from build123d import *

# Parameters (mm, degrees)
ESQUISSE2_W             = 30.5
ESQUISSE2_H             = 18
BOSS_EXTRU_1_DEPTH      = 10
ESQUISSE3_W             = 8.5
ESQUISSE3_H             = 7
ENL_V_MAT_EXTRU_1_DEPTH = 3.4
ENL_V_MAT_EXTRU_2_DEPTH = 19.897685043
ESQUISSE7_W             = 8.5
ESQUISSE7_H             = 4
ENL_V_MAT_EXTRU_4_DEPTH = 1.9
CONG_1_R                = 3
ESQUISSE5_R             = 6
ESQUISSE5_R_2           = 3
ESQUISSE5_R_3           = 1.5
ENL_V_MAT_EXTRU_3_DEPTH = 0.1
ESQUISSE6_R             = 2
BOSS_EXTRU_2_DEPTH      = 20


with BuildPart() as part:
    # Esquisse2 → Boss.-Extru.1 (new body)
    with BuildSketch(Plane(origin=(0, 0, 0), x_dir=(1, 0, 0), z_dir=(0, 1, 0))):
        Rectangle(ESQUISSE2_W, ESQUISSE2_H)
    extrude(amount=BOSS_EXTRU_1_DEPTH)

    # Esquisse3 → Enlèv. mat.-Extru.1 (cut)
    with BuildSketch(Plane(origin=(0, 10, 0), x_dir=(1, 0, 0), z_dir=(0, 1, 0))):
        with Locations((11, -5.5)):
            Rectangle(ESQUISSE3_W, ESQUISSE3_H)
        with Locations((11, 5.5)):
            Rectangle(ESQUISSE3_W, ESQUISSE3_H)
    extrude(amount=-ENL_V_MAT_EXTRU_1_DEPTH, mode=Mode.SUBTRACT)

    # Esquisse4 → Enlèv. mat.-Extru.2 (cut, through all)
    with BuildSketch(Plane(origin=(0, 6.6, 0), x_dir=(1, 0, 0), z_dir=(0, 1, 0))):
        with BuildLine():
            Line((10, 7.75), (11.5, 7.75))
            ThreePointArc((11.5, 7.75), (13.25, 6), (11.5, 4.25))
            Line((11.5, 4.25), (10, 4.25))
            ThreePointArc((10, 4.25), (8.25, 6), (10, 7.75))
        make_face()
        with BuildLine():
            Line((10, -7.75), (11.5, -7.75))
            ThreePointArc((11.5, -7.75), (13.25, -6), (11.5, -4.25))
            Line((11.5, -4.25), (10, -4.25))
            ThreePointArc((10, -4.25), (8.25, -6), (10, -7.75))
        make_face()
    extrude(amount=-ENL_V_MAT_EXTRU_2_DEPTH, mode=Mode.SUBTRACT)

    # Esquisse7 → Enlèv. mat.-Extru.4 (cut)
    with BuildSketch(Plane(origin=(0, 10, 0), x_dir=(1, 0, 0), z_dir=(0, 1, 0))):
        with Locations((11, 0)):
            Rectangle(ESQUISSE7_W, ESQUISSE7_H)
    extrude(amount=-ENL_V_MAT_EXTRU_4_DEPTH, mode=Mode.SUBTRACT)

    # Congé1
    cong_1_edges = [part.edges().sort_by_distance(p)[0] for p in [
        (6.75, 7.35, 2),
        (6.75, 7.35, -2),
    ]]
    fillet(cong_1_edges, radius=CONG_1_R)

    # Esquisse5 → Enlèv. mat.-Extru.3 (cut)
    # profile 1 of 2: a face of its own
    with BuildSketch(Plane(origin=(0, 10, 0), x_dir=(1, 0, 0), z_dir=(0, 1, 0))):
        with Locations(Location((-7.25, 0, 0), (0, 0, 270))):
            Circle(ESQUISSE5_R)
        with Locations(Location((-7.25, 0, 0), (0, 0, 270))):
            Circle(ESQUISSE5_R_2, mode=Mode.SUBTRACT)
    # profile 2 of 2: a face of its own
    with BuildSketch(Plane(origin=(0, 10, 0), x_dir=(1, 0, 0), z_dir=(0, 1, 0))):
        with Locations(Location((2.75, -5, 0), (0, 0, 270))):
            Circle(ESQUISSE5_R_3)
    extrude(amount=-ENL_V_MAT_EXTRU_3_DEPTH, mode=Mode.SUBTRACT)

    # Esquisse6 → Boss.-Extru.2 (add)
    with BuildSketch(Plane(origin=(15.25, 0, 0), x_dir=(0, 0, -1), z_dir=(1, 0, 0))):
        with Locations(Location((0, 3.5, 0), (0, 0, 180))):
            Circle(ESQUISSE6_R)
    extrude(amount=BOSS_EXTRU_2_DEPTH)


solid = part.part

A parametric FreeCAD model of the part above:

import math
import FreeCAD as App
import Part
import Sketcher
from FreeCAD import Vector
Q = App.Units.Quantity


def edges_at(feature, points):
    """Names of the edges that pass closest to the given points."""
    edges = feature.Shape.Edges
    near = lambda p: min(range(len(edges)), key=lambda i: edges[i].distToShape(Part.Vertex(*p))[0])
    return sorted({f"Edge{near(p) + 1}" for p in points})

doc = App.newDocument("Part")
body = doc.addObject("PartDesign::Body", "Body")

sketch1 = body.newObject("Sketcher::SketchObject", "Sketch")
sketch1.AttachmentSupport = (doc.getObject("XZ_Plane"), [""])
sketch1.MapMode = "FlatFace"
sketch1.addGeometry([
    Part.LineSegment(Vector(-15, -9, 0), Vector(-15, 9, 0)),
    Part.LineSegment(Vector(-15, 9, 0), Vector(15, 9, 0)),
    Part.LineSegment(Vector(15, 9, 0), Vector(15, -9, 0)),
    Part.LineSegment(Vector(15, -9, 0), Vector(-15, -9, 0)),
], False)
sketch1.addConstraint([
    Sketcher.Constraint("Coincident", 0, 2, 1, 1),
    Sketcher.Constraint("Coincident", 1, 2, 2, 1),
    Sketcher.Constraint("Coincident", 2, 2, 3, 1),
    Sketcher.Constraint("Coincident", 3, 2, 0, 1),
    Sketcher.Constraint("Vertical", 0),
    Sketcher.Constraint("Horizontal", 1),
    Sketcher.Constraint("Vertical", 2),
    Sketcher.Constraint("Horizontal", 3),
    Sketcher.Constraint("Symmetric", 0, 2, 2, 2, -1, 1),
    Sketcher.Constraint("DistanceY", 0, 1, 0, 2, Q("18 mm")),
    Sketcher.Constraint("DistanceX", 1, 1, 1, 2, Q("30.5 mm")),
])
pad1 = body.newObject("PartDesign::Pad", "Pad")
pad1.Profile = sketch1
pad1.Length = 10
pad1.Reversed = True

sketch2 = body.newObject("Sketcher::SketchObject", "Sketch001")
sketch2.AttachmentSupport = (doc.getObject("XZ_Plane"), [""])
sketch2.MapMode = "FlatFace"
sketch2.AttachmentOffset = App.Placement(Vector(0, 0, -10), App.Rotation())
sketch2.addGeometry([
    Part.LineSegment(Vector(7, 2, 0), Vector(7, 9, 0)),
    Part.LineSegment(Vector(7, 9, 0), Vector(15, 9, 0)),
    Part.LineSegment(Vector(15, 9, 0), Vector(15, 2, 0)),
    Part.LineSegment(Vector(15, 2, 0), Vector(7, 2, 0)),
    Part.LineSegment(Vector(7, -9, 0), Vector(7, -2, 0)),
    Part.LineSegment(Vector(7, -2, 0), Vector(15, -2, 0)),
    Part.LineSegment(Vector(15, -2, 0), Vector(15, -9, 0)),
    Part.LineSegment(Vector(15, -9, 0), Vector(7, -9, 0)),
], False)
sketch2.addConstraint([
    Sketcher.Constraint("Coincident", 0, 2, 1, 1),
    Sketcher.Constraint("Coincident", 1, 2, 2, 1),
    Sketcher.Constraint("Coincident", 2, 2, 3, 1),
    Sketcher.Constraint("Coincident", 3, 2, 0, 1),
    Sketcher.Constraint("Coincident", 4, 2, 5, 1),
    Sketcher.Constraint("Coincident", 5, 2, 6, 1),
    Sketcher.Constraint("Coincident", 6, 2, 7, 1),
    Sketcher.Constraint("Coincident", 7, 2, 4, 1),
    Sketcher.Constraint("Vertical", 0),
    Sketcher.Constraint("Horizontal", 1),
    Sketcher.Constraint("Vertical", 2),
    Sketcher.Constraint("Horizontal", 3),
    Sketcher.Constraint("Vertical", 4),
    Sketcher.Constraint("Horizontal", 5),
    Sketcher.Constraint("Vertical", 6),
    Sketcher.Constraint("Horizontal", 7),
    Sketcher.Constraint("Symmetric", 3, 2, 4, 2, -1),
    Sketcher.Constraint("Symmetric", 1, 2, 6, 2, -1),
    Sketcher.Constraint("DistanceY", 0, 1, 0, 2, Q("7 mm")),
    Sketcher.Constraint("DistanceX", 1, 1, 1, 2, Q("8.5 mm")),
    Sketcher.Constraint("DistanceY", -1, 1, 0, 2, Q("9 mm")),
    Sketcher.Constraint("DistanceX", -1, 1, 0, 2, Q("6.75 mm")),
])
pocket1 = body.newObject("PartDesign::Pocket", "Pocket")
pocket1.Profile = sketch2
pocket1.Length = 3.4
pocket1.Reversed = True

sketch3 = body.newObject("Sketcher::SketchObject", "Sketch002")
sketch3.AttachmentSupport = (doc.getObject("XZ_Plane"), [""])
sketch3.MapMode = "FlatFace"
sketch3.AttachmentOffset = App.Placement(Vector(0, 0, -6.6), App.Rotation())
sketch3.addGeometry([
    Part.LineSegment(Vector(11.5, -7.8, 0), Vector(10, -7.8, 0)),
    Part.ArcOfCircle(Part.Circle(Vector(10, -6, 0), Vector(0, 0, 1), 1.8), math.radians(90), math.radians(270)),
    Part.LineSegment(Vector(10, -4.2, 0), Vector(11.5, -4.2, 0)),
    Part.ArcOfCircle(Part.Circle(Vector(11.5, -6, 0), Vector(0, 0, 1), 1.8), math.radians(-90), math.radians(90)),
    Part.LineSegment(Vector(10, 7.8, 0), Vector(11.5, 7.8, 0)),
    Part.ArcOfCircle(Part.Circle(Vector(11.5, 6, 0), Vector(0, 0, 1), 1.8), math.radians(-90), math.radians(90)),
    Part.LineSegment(Vector(11.5, 4.2, 0), Vector(10, 4.2, 0)),
    Part.ArcOfCircle(Part.Circle(Vector(10, 6, 0), Vector(0, 0, 1), 1.8), math.radians(90), math.radians(270)),
], False)
sketch3.addConstraint([
    Sketcher.Constraint("Tangent", 0, 2, 1, 2),
    Sketcher.Constraint("Tangent", 1, 1, 2, 1),
    Sketcher.Constraint("Tangent", 2, 2, 3, 2),
    Sketcher.Constraint("Tangent", 3, 1, 0, 1),
    Sketcher.Constraint("Tangent", 4, 2, 5, 2),
    Sketcher.Constraint("Tangent", 5, 1, 6, 1),
    Sketcher.Constraint("Tangent", 6, 2, 7, 2),
    Sketcher.Constraint("Tangent", 7, 1, 4, 1),
    Sketcher.Constraint("Horizontal", 0),
    Sketcher.Constraint("Horizontal", 2),
    Sketcher.Constraint("Horizontal", 4),
    Sketcher.Constraint("Horizontal", 6),
    Sketcher.Constraint("Equal", 3, 5),
    Sketcher.Constraint("Symmetric", 3, 3, 5, 3, -1),
    Sketcher.Constraint("Vertical", 1, 3, 7, 3),
    Sketcher.Constraint("Radius", 1, Q("1.75 mm")),
    Sketcher.Constraint("DistanceX", 0, 2, 0, 1, Q("1.5 mm")),
    Sketcher.Constraint("DistanceX", -1, 1, 1, 3, Q("10 mm")),
    Sketcher.Constraint("DistanceY", 1, 3, -1, 1, Q("6 mm")),
])
pocket2 = body.newObject("PartDesign::Pocket", "Pocket001")
pocket2.Profile = sketch3
pocket2.Type = "ThroughAll"
pocket2.Reversed = True

sketch4 = body.newObject("Sketcher::SketchObject", "Sketch003")
sketch4.AttachmentSupport = (doc.getObject("XZ_Plane"), [""])
sketch4.MapMode = "FlatFace"
sketch4.AttachmentOffset = App.Placement(Vector(0, 0, -10), App.Rotation())
sketch4.addGeometry([
    Part.LineSegment(Vector(6.8, -2, 0), Vector(6.8, 2, 0)),
    Part.LineSegment(Vector(6.8, 2, 0), Vector(15.2, 2, 0)),
    Part.LineSegment(Vector(15.2, 2, 0), Vector(15.2, -2, 0)),
    Part.LineSegment(Vector(15.2, -2, 0), Vector(6.8, -2, 0)),
], False)
sketch4.addConstraint([
    Sketcher.Constraint("Coincident", 0, 2, 1, 1),
    Sketcher.Constraint("Coincident", 1, 2, 2, 1),
    Sketcher.Constraint("Coincident", 2, 2, 3, 1),
    Sketcher.Constraint("Coincident", 3, 2, 0, 1),
    Sketcher.Constraint("Vertical", 0),
    Sketcher.Constraint("Horizontal", 1),
    Sketcher.Constraint("Vertical", 2),
    Sketcher.Constraint("Horizontal", 3),
    Sketcher.Constraint("DistanceY", 0, 1, 0, 2, Q("4 mm")),
    Sketcher.Constraint("DistanceX", 1, 1, 1, 2, Q("8.5 mm")),
    Sketcher.Constraint("DistanceY", -1, 1, 0, 2, Q("2 mm")),
    Sketcher.Constraint("DistanceX", -1, 1, 0, 2, Q("6.75 mm")),
])
pocket3 = body.newObject("PartDesign::Pocket", "Pocket002")
pocket3.Profile = sketch4
pocket3.Length = 1.9
pocket3.Reversed = True
doc.recompute()

fillet = body.newObject("PartDesign::Fillet", "Fillet")
fillet.Base = (pocket3, edges_at(pocket3, [(6.75, 7.35, 2), (6.75, 7.35, -2)]))
fillet.Radius = 3

sketch5 = body.newObject("Sketcher::SketchObject", "Sketch004")
sketch5.AttachmentSupport = (doc.getObject("XZ_Plane"), [""])
sketch5.MapMode = "FlatFace"
sketch5.AttachmentOffset = App.Placement(Vector(0, 0, -10), App.Rotation())
sketch5.addGeometry([
    Part.Circle(Vector(-7.2, 0, 0), Vector(0, 0, 1), 6),
    Part.Circle(Vector(-7.2, 0, 0), Vector(0, 0, 1), 3),
    Part.Circle(Vector(2.8, 5, 0), Vector(0, 0, 1), 1.5),
], False)
sketch5.addConstraint([
    Sketcher.Constraint("Coincident", 1, 3, 0, 3),
    Sketcher.Constraint("PointOnObject", 0, 3, -1),
    Sketcher.Constraint("Diameter", 0, Q("12 mm")),
    Sketcher.Constraint("Diameter", 1, Q("6 mm")),
    Sketcher.Constraint("Diameter", 2, Q("3 mm")),
    Sketcher.Constraint("DistanceY", -1, 1, 2, 3, Q("5 mm")),
    Sketcher.Constraint("DistanceX", 0, 3, 2, 3, Q("10 mm")),
    Sketcher.Constraint("DistanceX", 0, 3, -1, 1, Q("7.25 mm")),
])
pocket4 = body.newObject("PartDesign::Pocket", "Pocket003")
pocket4.Profile = sketch5
pocket4.Length = 0.1
pocket4.Reversed = True

sketch6 = body.newObject("Sketcher::SketchObject", "Sketch005")
sketch6.AttachmentSupport = (doc.getObject("YZ_Plane"), [""])
sketch6.MapMode = "FlatFace"
sketch6.AttachmentOffset = App.Placement(Vector(0, 0, 15.25), App.Rotation())
sketch6.addGeometry(Part.Circle(Vector(3.5, 0, 0), Vector(0, 0, 1), 2), False)
sketch6.addConstraint([
    Sketcher.Constraint("PointOnObject", 0, 3, -1),
    Sketcher.Constraint("Diameter", 0, Q("4 mm")),
    Sketcher.Constraint("DistanceX", -1, 1, 0, 3, Q("3.5 mm")),
])
pad2 = body.newObject("PartDesign::Pad", "Pad001")
pad2.Profile = sketch6
pad2.Length = 20

doc.recompute()
